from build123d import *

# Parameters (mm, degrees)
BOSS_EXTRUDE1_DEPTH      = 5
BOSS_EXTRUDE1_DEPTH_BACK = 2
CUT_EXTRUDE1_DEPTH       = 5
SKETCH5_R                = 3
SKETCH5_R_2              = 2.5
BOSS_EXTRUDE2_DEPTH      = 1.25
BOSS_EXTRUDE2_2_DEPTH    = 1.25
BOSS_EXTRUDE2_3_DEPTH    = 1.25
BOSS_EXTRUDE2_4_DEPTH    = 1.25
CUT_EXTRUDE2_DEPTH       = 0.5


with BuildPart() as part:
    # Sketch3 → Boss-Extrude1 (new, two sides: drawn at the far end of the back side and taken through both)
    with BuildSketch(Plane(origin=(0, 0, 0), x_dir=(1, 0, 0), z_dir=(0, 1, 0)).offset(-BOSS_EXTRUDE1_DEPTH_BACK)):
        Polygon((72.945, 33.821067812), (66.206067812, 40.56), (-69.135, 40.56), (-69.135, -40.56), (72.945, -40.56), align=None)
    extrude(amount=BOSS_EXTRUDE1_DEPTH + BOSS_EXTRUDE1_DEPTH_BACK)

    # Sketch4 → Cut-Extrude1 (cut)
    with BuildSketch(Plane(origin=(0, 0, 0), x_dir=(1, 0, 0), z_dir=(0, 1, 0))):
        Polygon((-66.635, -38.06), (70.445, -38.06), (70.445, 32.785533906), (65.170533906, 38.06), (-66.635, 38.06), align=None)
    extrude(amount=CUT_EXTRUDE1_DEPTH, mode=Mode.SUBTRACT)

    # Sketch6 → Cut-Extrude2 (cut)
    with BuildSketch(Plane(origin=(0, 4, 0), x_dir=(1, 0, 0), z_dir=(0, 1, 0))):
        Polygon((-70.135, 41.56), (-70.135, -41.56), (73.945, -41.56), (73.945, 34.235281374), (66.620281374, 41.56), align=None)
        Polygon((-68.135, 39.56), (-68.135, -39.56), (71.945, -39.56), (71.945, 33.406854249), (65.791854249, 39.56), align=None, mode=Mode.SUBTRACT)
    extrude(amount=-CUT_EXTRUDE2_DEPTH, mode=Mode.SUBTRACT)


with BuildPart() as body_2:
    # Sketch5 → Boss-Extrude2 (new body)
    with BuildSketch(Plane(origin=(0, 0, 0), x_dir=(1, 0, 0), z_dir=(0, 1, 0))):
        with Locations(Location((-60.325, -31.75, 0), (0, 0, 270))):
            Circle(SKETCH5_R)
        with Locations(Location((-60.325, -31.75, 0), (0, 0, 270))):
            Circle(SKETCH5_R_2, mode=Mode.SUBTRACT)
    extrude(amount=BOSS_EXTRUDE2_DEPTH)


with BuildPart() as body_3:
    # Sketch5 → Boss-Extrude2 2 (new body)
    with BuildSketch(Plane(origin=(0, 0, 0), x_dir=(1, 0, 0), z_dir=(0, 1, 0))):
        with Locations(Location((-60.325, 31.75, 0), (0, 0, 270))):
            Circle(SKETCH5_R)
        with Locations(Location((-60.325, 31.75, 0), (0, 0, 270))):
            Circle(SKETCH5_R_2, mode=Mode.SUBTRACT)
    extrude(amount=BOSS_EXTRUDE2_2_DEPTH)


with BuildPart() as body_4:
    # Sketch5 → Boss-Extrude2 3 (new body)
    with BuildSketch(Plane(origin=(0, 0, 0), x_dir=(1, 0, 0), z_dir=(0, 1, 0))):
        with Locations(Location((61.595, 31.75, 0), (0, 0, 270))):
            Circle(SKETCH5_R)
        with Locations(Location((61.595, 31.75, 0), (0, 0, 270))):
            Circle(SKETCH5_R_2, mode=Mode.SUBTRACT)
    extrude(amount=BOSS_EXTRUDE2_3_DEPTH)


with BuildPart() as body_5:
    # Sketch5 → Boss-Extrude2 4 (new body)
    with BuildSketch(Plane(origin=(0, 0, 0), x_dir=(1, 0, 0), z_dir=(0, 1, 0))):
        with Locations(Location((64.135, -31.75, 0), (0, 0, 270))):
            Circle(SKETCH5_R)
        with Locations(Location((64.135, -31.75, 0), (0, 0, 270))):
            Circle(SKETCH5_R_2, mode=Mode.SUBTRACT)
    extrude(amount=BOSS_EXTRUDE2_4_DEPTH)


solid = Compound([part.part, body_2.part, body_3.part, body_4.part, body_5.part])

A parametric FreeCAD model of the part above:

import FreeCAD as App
import Part
import Sketcher
from FreeCAD import Vector
Q = App.Units.Quantity

doc = App.newDocument("Part")
params = doc.addObject("Spreadsheet::Sheet", "Params")
for row, (alias, value) in enumerate([
    ("sketch1_width", "142.08 mm"),
    ("sketch1_height", "81.12 mm"),
    ("pad1_length", "5 mm"),
    ("pad1_length2", "2 mm"),
    ("sketch2_width", "137.08 mm"),
    ("sketch2_height", "76.12 mm"),
    ("pocket1_length", "5 mm"),
    ("sketch3_width", "144.08 mm"),
    ("sketch3_height", "83.12 mm"),
    ("pocket2_length", "0.5 mm"),
    ("sketch4_diameter", "6 mm"),
    ("sketch4_diameter2", "5 mm"),
    ("pad2_length", "1.25 mm"),
    ("sketch5_diameter", "6 mm"),
    ("sketch5_diameter2", "5 mm"),
    ("pad3_length", "1.25 mm"),
    ("sketch6_diameter", "6 mm"),
    ("sketch6_diameter2", "5 mm"),
    ("pad4_length", "1.25 mm"),
    ("sketch7_diameter", "6 mm"),
    ("sketch7_diameter2", "5 mm"),
    ("pad5_length", "1.25 mm"),
], start=1):
    params.set(f"A{row}", alias)
    params.set(f"B{row}", "=" + value)
    params.setAlias(f"B{row}", alias)

body = doc.addObject("PartDesign::Body", "Body")

sketch1 = body.newObject("Sketcher::SketchObject", "Sketch")
sketch1.AttachmentSupport = (doc.getObject("XZ_Plane"), [""])
sketch1.MapMode = "FlatFace"
sketch1.addGeometry([
    Part.LineSegment(Vector(73, -34, 0), Vector(66, -41, 0)),
    Part.LineSegment(Vector(66, -41, 0), Vector(-69, -41, 0)),
    Part.LineSegment(Vector(-69, -41, 0), Vector(-69, 41, 0)),
    Part.LineSegment(Vector(-69, 41, 0), Vector(73, 41, 0)),
    Part.LineSegment(Vector(73, 41, 0), Vector(73, -34, 0)),
], False)
sketch1.addConstraint([
    Sketcher.Constraint("Coincident", 0, 2, 1, 1),
    Sketcher.Constraint("Coincident", 1, 2, 2, 1),
    Sketcher.Constraint("Coincident", 2, 2, 3, 1),
    Sketcher.Constraint("Coincident", 3, 2, 4, 1),
    Sketcher.Constraint("Coincident", 4, 2, 0, 1),
    Sketcher.Constraint("Horizontal", 1),
    Sketcher.Constraint("Vertical", 2),
    Sketcher.Constraint("Horizontal", 3),
    Sketcher.Constraint("Vertical", 4),
    Sketcher.Constraint("Angle", 0, Q("-135 deg")),
    Sketcher.Constraint("DistanceX", 3, 1, 3, 2, 142.08),
    Sketcher.Constraint("DistanceY", 2, 1, 2, 2, 81.12),
    Sketcher.Constraint("DistanceY", 0, 2, -1, 1, 40.56),
    Sketcher.Constraint("DistanceX", 1, 2, -1, 1, 69.135),
    Sketcher.Constraint("Distance", 0, 9.530289),
])
sketch1.setExpression("Constraints[10]", "Params.sketch1_width")
sketch1.setExpression("Constraints[11]", "Params.sketch1_height")
pad1 = body.newObject("PartDesign::Pad", "Pad")
pad1.Profile = sketch1
pad1.Type = "TwoLengths"
pad1.setExpression("Length", "Params.pad1_length")
pad1.setExpression("Length2", "Params.pad1_length2")
pad1.Reversed = True

sketch2 = body.newObject("Sketcher::SketchObject", "Sketch001")
sketch2.AttachmentSupport = (doc.getObject("XZ_Plane"), [""])
sketch2.MapMode = "FlatFace"
sketch2.addGeometry([
    Part.LineSegment(Vector(-67, 38, 0), Vector(70, 38, 0)),
    Part.LineSegment(Vector(70, 38, 0), Vector(70, -33, 0)),
    Part.LineSegment(Vector(70, -33, 0), Vector(65, -38, 0)),
    Part.LineSegment(Vector(65, -38, 0), Vector(-67, -38, 0)),
    Part.LineSegment(Vector(-67, -38, 0), Vector(-67, 38, 0)),
], False)
sketch2.addConstraint([
    Sketcher.Constraint("Coincident", 0, 2, 1, 1),
    Sketcher.Constraint("Coincident", 1, 2, 2, 1),
    Sketcher.Constraint("Coincident", 2, 2, 3, 1),
    Sketcher.Constraint("Coincident", 3, 2, 4, 1),
    Sketcher.Constraint("Coincident", 4, 2, 0, 1),
    Sketcher.Constraint("Horizontal", 0),
    Sketcher.Constraint("Vertical", 1),
    Sketcher.Constraint("Horizontal", 3),
    Sketcher.Constraint("Vertical", 4),
    Sketcher.Constraint("Angle", 2, Q("-135 deg")),
    Sketcher.Constraint("DistanceX", 0, 1, 0, 2, 137.08),
    Sketcher.Constraint("DistanceY", 4, 1, 4, 2, 76.12),
    Sketcher.Constraint("DistanceY", -1, 1, 0, 2, 38.06),
    Sketcher.Constraint("DistanceX", -1, 1, 0, 2, 70.445),
    Sketcher.Constraint("Distance", 2, 7.459221),
])
sketch2.setExpression("Constraints[10]", "Params.sketch2_width")
sketch2.setExpression("Constraints[11]", "Params.sketch2_height")
pocket1 = body.newObject("PartDesign::Pocket", "Pocket")
pocket1.Profile = sketch2
pocket1.setExpression("Length", "Params.pocket1_length")

sketch3 = body.newObject("Sketcher::SketchObject", "Sketch002")
sketch3.AttachmentSupport = (doc.getObject("XZ_Plane"), [""])
sketch3.MapMode = "FlatFace"
sketch3.AttachmentOffset = App.Placement(Vector(0, 0, -4), App.Rotation())
sketch3.addGeometry([
    Part.LineSegment(Vector(-70, -42, 0), Vector(-70, 42, 0)),
    Part.LineSegment(Vector(-70, 42, 0), Vector(74, 42, 0)),
    Part.LineSegment(Vector(74, 42, 0), Vector(74, -34, 0)),
    Part.LineSegment(Vector(74, -34, 0), Vector(67, -42, 0)),
    Part.LineSegment(Vector(67, -42, 0), Vector(-70, -42, 0)),
    Part.LineSegment(Vector(-68, 40, 0), Vector(-68, -40, 0)),
    Part.LineSegment(Vector(-68, -40, 0), Vector(66, -40, 0)),
    Part.LineSegment(Vector(66, -40, 0), Vector(72, -33, 0)),
    Part.LineSegment(Vector(72, -33, 0), Vector(72, 40, 0)),
    Part.LineSegment(Vector(72, 40, 0), Vector(-68, 40, 0)),
], False)
sketch3.addConstraint([
    Sketcher.Constraint("Coincident", 0, 2, 1, 1),
    Sketcher.Constraint("Coincident", 1, 2, 2, 1),
    Sketcher.Constraint("Coincident", 2, 2, 3, 1),
    Sketcher.Constraint("Coincident", 3, 2, 4, 1),
    Sketcher.Constraint("Coincident", 4, 2, 0, 1),
    Sketcher.Constraint("Coincident", 5, 2, 6, 1),
    Sketcher.Constraint("Coincident", 6, 2, 7, 1),
    Sketcher.Constraint("Coincident", 7, 2, 8, 1),
    Sketcher.Constraint("Coincident", 8, 2, 9, 1),
    Sketcher.Constraint("Coincident", 9, 2, 5, 1),
    Sketcher.Constraint("Vertical", 0),
    Sketcher.Constraint("Horizontal", 1),
    Sketcher.Constraint("Vertical", 2),
    Sketcher.Constraint("Horizontal", 4),
    Sketcher.Constraint("Vertical", 5),
    Sketcher.Constraint("Horizontal", 6),
    Sketcher.Constraint("Vertical", 8),
    Sketcher.Constraint("Horizontal", 9),
    Sketcher.Constraint("Parallel", 3, 7),
    Sketcher.Constraint("Angle", 3, Q("-135 deg")),
    Sketcher.Constraint("DistanceX", 4, 2, 5, 2, 2.0),
    Sketcher.Constraint("DistanceY", 4, 2, 5, 2, 2.0),
    Sketcher.Constraint("DistanceX", 7, 2, 2, 2, 2.0),
    Sketcher.Constraint("DistanceY", 8, 2, 1, 2, 2.0),
    Sketcher.Constraint("DistanceX", 1, 1, 1, 2, 144.08),
    Sketcher.Constraint("DistanceY", 0, 1, 0, 2, 83.12),
    Sketcher.Constraint("DistanceY", -1, 1, 0, 2, 41.56),
    Sketcher.Constraint("DistanceX", 0, 2, -1, 1, 70.135),
    Sketcher.Constraint("DistanceX", 4, 2, 4, 1, 136.755281),
    Sketcher.Constraint("DistanceX", 6, 1, 6, 2, 133.926854),
])
sketch3.setExpression("Constraints[24]", "Params.sketch3_width")
sketch3.setExpression("Constraints[25]", "Params.sketch3_height")
pocket2 = body.newObject("PartDesign::Pocket", "Pocket001")
pocket2.Profile = sketch3
pocket2.setExpression("Length", "Params.pocket2_length")
pocket2.Reversed = True
body2 = doc.addObject("PartDesign::Body", "Body001")

sketch4 = body2.newObject("Sketcher::SketchObject", "Sketch003")
sketch4.AttachmentSupport = (doc.getObject("XZ_Plane001"), [""])
sketch4.MapMode = "FlatFace"
sketch4.addGeometry([
    Part.Circle(Vector(-60.3, 31.8, 0), Vector(0, 0, 1), 3),
    Part.Circle(Vector(-60.3, 31.8, 0), Vector(0, 0, 1), 2.5),
], False)
sketch4.addConstraint([
    Sketcher.Constraint("Coincident", 1, 3, 0, 3),
    Sketcher.Constraint("Diameter", 0, 6.0),
    Sketcher.Constraint("Diameter", 1, 5.0),
    Sketcher.Constraint("DistanceY", -1, 1, 0, 3, 31.75),
    Sketcher.Constraint("DistanceX", 0, 3, -1, 1, 60.325),
])
sketch4.setExpression("Constraints[1]", "Params.sketch4_diameter")
sketch4.setExpression("Constraints[2]", "Params.sketch4_diameter2")
pad2 = body2.newObject("PartDesign::Pad", "Pad001")
pad2.Profile = sketch4
pad2.setExpression("Length", "Params.pad2_length")
pad2.Reversed = True
body3 = doc.addObject("PartDesign::Body", "Body002")

sketch5 = body3.newObject("Sketcher::SketchObject", "Sketch004")
sketch5.AttachmentSupport = (doc.getObject("XZ_Plane002"), [""])
sketch5.MapMode = "FlatFace"
sketch5.addGeometry([
    Part.Circle(Vector(-60.3, -31.8, 0), Vector(0, 0, 1), 3),
    Part.Circle(Vector(-60.3, -31.8, 0), Vector(0, 0, 1), 2.5),
], False)
sketch5.addConstraint([
    Sketcher.Constraint("Coincident", 1, 3, 0, 3),
    Sketcher.Constraint("Diameter", 0, 6.0),
    Sketcher.Constraint("Diameter", 1, 5.0),
    Sketcher.Constraint("DistanceY", 0, 3, -1, 1, 31.75),
    Sketcher.Constraint("DistanceX", 0, 3, -1, 1, 60.325),
])
sketch5.setExpression("Constraints[1]", "Params.sketch5_diameter")
sketch5.setExpression("Constraints[2]", "Params.sketch5_diameter2")
pad3 = body3.newObject("PartDesign::Pad", "Pad002")
pad3.Profile = sketch5
pad3.setExpression("Length", "Params.pad3_length")
pad3.Reversed = True
body4 = doc.addObject("PartDesign::Body", "Body003")

sketch6 = body4.newObject("Sketcher::SketchObject", "Sketch005")
sketch6.AttachmentSupport = (doc.getObject("XZ_Plane003"), [""])
sketch6.MapMode = "FlatFace"
sketch6.addGeometry([
    Part.Circle(Vector(61.6, -31.8, 0), Vector(0, 0, 1), 3),
    Part.Circle(Vector(61.6, -31.8, 0), Vector(0, 0, 1), 2.5),
], False)
sketch6.addConstraint([
    Sketcher.Constraint("Coincident", 1, 3, 0, 3),
    Sketcher.Constraint("Diameter", 0, 6.0),
    Sketcher.Constraint("Diameter", 1, 5.0),
    Sketcher.Constraint("DistanceY", 0, 3, -1, 1, 31.75),
    Sketcher.Constraint("DistanceX", -1, 1, 0, 3, 61.595),
])
sketch6.setExpression("Constraints[1]", "Params.sketch6_diameter")
sketch6.setExpression("Constraints[2]", "Params.sketch6_diameter2")
pad4 = body4.newObject("PartDesign::Pad", "Pad003")
pad4.Profile = sketch6
pad4.setExpression("Length", "Params.pad4_length")
pad4.Reversed = True
body5 = doc.addObject("PartDesign::Body", "Body004")

sketch7 = body5.newObject("Sketcher::SketchObject", "Sketch006")
sketch7.AttachmentSupport = (doc.getObject("XZ_Plane004"), [""])
sketch7.MapMode = "FlatFace"
sketch7.addGeometry([
    Part.Circle(Vector(64.1, 31.8, 0), Vector(0, 0, 1), 3),
    Part.Circle(Vector(64.1, 31.8, 0), Vector(0, 0, 1), 2.5),
], False)
sketch7.addConstraint([
    Sketcher.Constraint("Coincident", 1, 3, 0, 3),
    Sketcher.Constraint("Diameter", 0, 6.0),
    Sketcher.Constraint("Diameter", 1, 5.0),
    Sketcher.Constraint("DistanceY", -1, 1, 0, 3, 31.75),
    Sketcher.Constraint("DistanceX", -1, 1, 0, 3, 64.135),
])
sketch7.setExpression("Constraints[1]", "Params.sketch7_diameter")
sketch7.setExpression("Constraints[2]", "Params.sketch7_diameter2")
pad5 = body5.newObject("PartDesign::Pad", "Pad004")
pad5.Profile = sketch7
pad5.setExpression("Length", "Params.pad5_length")
pad5.Reversed = True

doc.recompute()
